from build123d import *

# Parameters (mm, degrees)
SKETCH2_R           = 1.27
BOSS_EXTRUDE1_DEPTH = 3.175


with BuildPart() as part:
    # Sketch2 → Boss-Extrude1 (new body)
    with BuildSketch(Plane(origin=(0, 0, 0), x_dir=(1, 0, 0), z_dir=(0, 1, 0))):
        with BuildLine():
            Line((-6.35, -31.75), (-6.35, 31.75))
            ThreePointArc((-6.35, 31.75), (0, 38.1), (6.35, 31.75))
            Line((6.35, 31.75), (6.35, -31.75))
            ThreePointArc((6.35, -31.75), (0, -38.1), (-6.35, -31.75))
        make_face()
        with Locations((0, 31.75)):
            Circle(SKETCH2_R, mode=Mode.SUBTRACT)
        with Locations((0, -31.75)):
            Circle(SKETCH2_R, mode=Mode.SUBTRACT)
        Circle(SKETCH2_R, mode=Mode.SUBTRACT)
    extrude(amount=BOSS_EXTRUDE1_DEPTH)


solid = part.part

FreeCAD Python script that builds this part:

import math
import FreeCAD as App
import Part
import Sketcher
Q = App.Units.Quantity

doc = App.newDocument("Part")
body = doc.addObject("PartDesign::Body", "Body")

sketch1 = doc.addObject("Sketcher::SketchObject", "Sketch")
body.addObject(sketch1)
sketch1.AttachmentSupport = (doc.XZ_Plane, [""])
sketch1.MapMode = "FlatFace"
sketch1.addGeometry(Part.LineSegment(App.Vector(-6.35, -31.75, 0), App.Vector(-6.35, 31.75, 0)), False)
sketch1.addGeometry(Part.ArcOfCircle(Part.Circle(App.Vector(0, 31.75, 0), App.Vector(0, 0, 1), 6.35), math.radians(0), math.radians(180)), False)
sketch1.addGeometry(Part.LineSegment(App.Vector(6.35, 31.75, 0), App.Vector(6.35, -31.75, 0)), False)
sketch1.addGeometry(Part.ArcOfCircle(Part.Circle(App.Vector(0, -31.75, 0), App.Vector(0, 0, 1), 6.35), math.radians(180), math.radians(360)), False)
sketch1.addGeometry(Part.Circle(App.Vector(0, 31.75, 0), App.Vector(0, 0, 1), 1.27), False)
sketch1.addGeometry(Part.Circle(App.Vector(0, 0, 0), App.Vector(0, 0, 1), 1.27), False)
sketch1.addGeometry(Part.Circle(App.Vector(0, -31.75, 0), App.Vector(0, 0, 1), 1.27), False)
sketch1.addConstraint(Sketcher.Constraint("Tangent", 0, 2, 1, 2))
sketch1.addConstraint(Sketcher.Constraint("Tangent", 1, 1, 2, 1))
sketch1.addConstraint(Sketcher.Constraint("Tangent", 2, 2, 3, 2))
sketch1.addConstraint(Sketcher.Constraint("Tangent", 3, 1, 0, 1))
sketch1.addConstraint(Sketcher.Constraint("Vertical", 0))
sketch1.addConstraint(Sketcher.Constraint("Vertical", 2))
sketch1.addConstraint(Sketcher.Constraint("Coincident", 5, 3, -1, 1))
sketch1.addConstraint(Sketcher.Constraint("Coincident", 4, 3, 1, 3))
sketch1.addConstraint(Sketcher.Constraint("Coincident", 6, 3, 3, 3))
sketch1.addConstraint(Sketcher.Constraint("Equal", 4, 5))
sketch1.addConstraint(Sketcher.Constraint("Equal", 5, 6))
sketch1.addConstraint(Sketcher.Constraint("Symmetric", 1, 3, 3, 3, -1, 1))
sketch1.addConstraint(Sketcher.Constraint("Diameter", 4, Q("0.1 in")))
sketch1.addConstraint(Sketcher.Constraint("Radius", 1, Q("0.25 in")))
sketch1.addConstraint(Sketcher.Constraint("DistanceY", 0, 1, 0, 2, Q("2.5 in")))
pad1 = doc.addObject("PartDesign::Pad", "Pad")
body.addObject(pad1)
pad1.Profile = sketch1
pad1.Length = Q("0.125 in")
pad1.Reversed = True

doc.recompute()
